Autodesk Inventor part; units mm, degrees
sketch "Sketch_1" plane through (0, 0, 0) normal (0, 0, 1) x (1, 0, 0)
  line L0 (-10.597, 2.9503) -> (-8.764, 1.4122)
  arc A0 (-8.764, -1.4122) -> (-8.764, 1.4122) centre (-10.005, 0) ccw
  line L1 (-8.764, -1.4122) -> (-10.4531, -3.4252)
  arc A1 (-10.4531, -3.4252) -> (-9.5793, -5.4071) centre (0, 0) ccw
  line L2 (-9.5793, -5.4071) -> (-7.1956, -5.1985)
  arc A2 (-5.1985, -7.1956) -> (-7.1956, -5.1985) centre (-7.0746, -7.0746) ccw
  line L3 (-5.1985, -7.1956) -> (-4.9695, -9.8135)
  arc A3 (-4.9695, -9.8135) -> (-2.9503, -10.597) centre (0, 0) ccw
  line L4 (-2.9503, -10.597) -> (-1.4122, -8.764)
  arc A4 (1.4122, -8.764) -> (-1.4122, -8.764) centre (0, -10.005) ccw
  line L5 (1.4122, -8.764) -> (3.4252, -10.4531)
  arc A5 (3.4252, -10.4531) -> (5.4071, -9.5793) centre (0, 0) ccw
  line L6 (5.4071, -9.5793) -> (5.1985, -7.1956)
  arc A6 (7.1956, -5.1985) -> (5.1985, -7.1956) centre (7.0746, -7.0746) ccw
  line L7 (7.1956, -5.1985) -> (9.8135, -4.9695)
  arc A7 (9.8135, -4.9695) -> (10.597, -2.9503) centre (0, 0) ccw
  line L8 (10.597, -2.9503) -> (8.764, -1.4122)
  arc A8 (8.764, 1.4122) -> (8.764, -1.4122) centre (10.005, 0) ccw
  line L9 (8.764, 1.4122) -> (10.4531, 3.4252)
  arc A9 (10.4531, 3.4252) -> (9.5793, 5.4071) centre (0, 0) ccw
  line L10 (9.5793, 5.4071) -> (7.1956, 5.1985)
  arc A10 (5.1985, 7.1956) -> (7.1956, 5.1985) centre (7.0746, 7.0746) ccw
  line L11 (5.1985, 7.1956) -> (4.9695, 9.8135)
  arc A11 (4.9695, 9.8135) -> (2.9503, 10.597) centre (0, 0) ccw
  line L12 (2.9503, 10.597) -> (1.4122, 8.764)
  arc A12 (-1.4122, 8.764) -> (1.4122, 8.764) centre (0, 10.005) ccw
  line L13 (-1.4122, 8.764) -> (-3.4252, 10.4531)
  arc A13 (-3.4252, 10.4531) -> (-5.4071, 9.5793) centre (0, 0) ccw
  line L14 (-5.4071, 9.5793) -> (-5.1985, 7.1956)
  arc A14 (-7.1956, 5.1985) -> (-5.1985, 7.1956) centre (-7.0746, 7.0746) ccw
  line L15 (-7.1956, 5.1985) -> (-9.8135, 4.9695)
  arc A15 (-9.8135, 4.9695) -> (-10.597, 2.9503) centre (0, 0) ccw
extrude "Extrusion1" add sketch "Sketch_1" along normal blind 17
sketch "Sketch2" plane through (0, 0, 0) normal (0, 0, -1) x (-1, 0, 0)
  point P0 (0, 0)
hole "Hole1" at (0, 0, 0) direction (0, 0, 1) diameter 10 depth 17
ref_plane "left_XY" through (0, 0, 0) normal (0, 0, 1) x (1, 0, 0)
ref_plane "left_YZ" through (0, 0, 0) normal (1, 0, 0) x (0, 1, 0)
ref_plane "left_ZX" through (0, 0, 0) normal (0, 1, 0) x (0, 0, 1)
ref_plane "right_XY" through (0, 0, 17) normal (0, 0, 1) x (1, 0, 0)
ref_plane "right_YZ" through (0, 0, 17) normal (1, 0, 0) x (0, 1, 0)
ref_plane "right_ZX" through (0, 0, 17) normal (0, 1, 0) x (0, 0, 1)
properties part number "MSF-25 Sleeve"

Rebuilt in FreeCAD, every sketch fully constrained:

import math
import FreeCAD as App
import Part
import Sketcher
Q = App.Units.Quantity

doc = App.newDocument("Part")
body = doc.addObject("PartDesign::Body", "Body")

# Sketch on XY plane
sketch1 = body.newObject("Sketcher::SketchObject", "Sketch")
sketch1.AttachmentSupport = (doc.getObject("XY_Plane"), [""])
sketch1.MapMode = "FlatFace"
sketch1.addGeometry([
    Part.ArcOfCircle(Part.Circle(App.Vector(0, 0, 0), App.Vector(0, 0, 1), 10.999968), math.radians(153.142608), math.radians(164.44232)),  # 0
    Part.LineSegment(App.Vector(-10.597, 2.9503, 0), App.Vector(-8.764, 1.4122, 0)),  # 1
    Part.ArcOfCircle(Part.Circle(App.Vector(-10.005, 0, 0), App.Vector(0, 0, 1), 1.879997), math.radians(-48.691941), math.radians(48.691941)),  # 2
    Part.LineSegment(App.Vector(-8.764, -1.4122, 0), App.Vector(-10.4531, -3.4252, 0)),  # 3
    Part.ArcOfCircle(Part.Circle(App.Vector(0.001856, 0.000711, 0), App.Vector(0, 0, 1), 11.001953), math.radians(-161.85691), math.radians(-150.558679)),  # 4
    Part.LineSegment(App.Vector(-9.5793, -5.4071, 0), App.Vector(-7.1956, -5.1985, 0)),  # 5
    Part.ArcOfCircle(Part.Circle(App.Vector(-7.0746, -7.0746, 0), App.Vector(0, 0, 1), 1.879998), math.radians(-3.690209), math.radians(93.690209)),  # 6
    Part.LineSegment(App.Vector(-5.1985, -7.1956, 0), App.Vector(-4.9695, -9.8135, 0)),  # 7
    Part.ArcOfCircle(Part.Circle(App.Vector(0, 0, 0), App.Vector(0, 0, 1), 10.999968), math.radians(-116.857392), math.radians(-105.55768)),  # 8
    Part.LineSegment(App.Vector(-2.9503, -10.597, 0), App.Vector(-1.4122, -8.764, 0)),  # 9
    Part.ArcOfCircle(Part.Circle(App.Vector(0, -10.005, 0), App.Vector(0, 0, 1), 1.879997), math.radians(41.308059), math.radians(138.691941)),  # 10
    Part.LineSegment(App.Vector(1.4122, -8.764, 0), App.Vector(3.4252, -10.4531, 0)),  # 11
    Part.ArcOfCircle(Part.Circle(App.Vector(-0.000711, 0.001856, 0), App.Vector(0, 0, 1), 11.001953), math.radians(-71.85691), math.radians(-60.558679)),  # 12
    Part.LineSegment(App.Vector(5.4071, -9.5793, 0), App.Vector(5.1985, -7.1956, 0)),  # 13
    Part.ArcOfCircle(Part.Circle(App.Vector(7.0746, -7.0746, 0), App.Vector(0, 0, 1), 1.879998), math.radians(86.309791), math.radians(183.690209)),  # 14
    Part.LineSegment(App.Vector(7.1956, -5.1985, 0), App.Vector(9.8135, -4.9695, 0)),  # 15
    Part.ArcOfCircle(Part.Circle(App.Vector(0, 0, 0), App.Vector(0, 0, 1), 10.999968), math.radians(-26.857392), math.radians(-15.55768)),  # 16
    Part.LineSegment(App.Vector(10.597, -2.9503, 0), App.Vector(8.764, -1.4122, 0)),  # 17
    Part.ArcOfCircle(Part.Circle(App.Vector(10.005, 0, 0), App.Vector(0, 0, 1), 1.879997), math.radians(131.308059), math.radians(228.691941)),  # 18
    Part.LineSegment(App.Vector(8.764, 1.4122, 0), App.Vector(10.4531, 3.4252, 0)),  # 19
    Part.ArcOfCircle(Part.Circle(App.Vector(-0.001856, -0.000711, 0), App.Vector(0, 0, 1), 11.001953), math.radians(18.14309), math.radians(29.441321)),  # 20
    Part.LineSegment(App.Vector(9.5793, 5.4071, 0), App.Vector(7.1956, 5.1985, 0)),  # 21
    Part.ArcOfCircle(Part.Circle(App.Vector(7.0746, 7.0746, 0), App.Vector(0, 0, 1), 1.879998), math.radians(176.309791), math.radians(273.690209)),  # 22
    Part.LineSegment(App.Vector(5.1985, 7.1956, 0), App.Vector(4.9695, 9.8135, 0)),  # 23
    Part.ArcOfCircle(Part.Circle(App.Vector(0, 0, 0), App.Vector(0, 0, 1), 10.999968), math.radians(63.142608), math.radians(74.44232)),  # 24
    Part.LineSegment(App.Vector(2.9503, 10.597, 0), App.Vector(1.4122, 8.764, 0)),  # 25
    Part.ArcOfCircle(Part.Circle(App.Vector(0, 10.005, 0), App.Vector(0, 0, 1), 1.879997), math.radians(-138.691941), math.radians(-41.308059)),  # 26
    Part.LineSegment(App.Vector(-1.4122, 8.764, 0), App.Vector(-3.4252, 10.4531, 0)),  # 27
    Part.ArcOfCircle(Part.Circle(App.Vector(0.000711, -0.001856, 0), App.Vector(0, 0, 1), 11.001953), math.radians(108.14309), math.radians(119.441321)),  # 28
    Part.LineSegment(App.Vector(-5.4071, 9.5793, 0), App.Vector(-5.1985, 7.1956, 0)),  # 29
    Part.ArcOfCircle(Part.Circle(App.Vector(-7.0746, 7.0746, 0), App.Vector(0, 0, 1), 1.879998), math.radians(-93.690209), math.radians(3.690209)),  # 30
    Part.LineSegment(App.Vector(-7.1956, 5.1985, 0), App.Vector(-9.8135, 4.9695, 0)),  # 31
], False)
sketch1.addConstraint([
    Sketcher.Constraint("Coincident", 0, 2, 1, 1),
    Sketcher.Constraint("Coincident", 1, 2, 2, 2),
    Sketcher.Constraint("Coincident", 2, 1, 3, 1),
    Sketcher.Constraint("Coincident", 3, 2, 4, 1),
    Sketcher.Constraint("Coincident", 4, 2, 5, 1),
    Sketcher.Constraint("Coincident", 5, 2, 6, 2),
    Sketcher.Constraint("Coincident", 6, 1, 7, 1),
    Sketcher.Constraint("Coincident", 7, 2, 8, 1),
    Sketcher.Constraint("Coincident", 8, 2, 9, 1),
    Sketcher.Constraint("Coincident", 9, 2, 10, 2),
    Sketcher.Constraint("Coincident", 10, 1, 11, 1),
    Sketcher.Constraint("Coincident", 11, 2, 12, 1),
    Sketcher.Constraint("Coincident", 12, 2, 13, 1),
    Sketcher.Constraint("Coincident", 13, 2, 14, 2),
    Sketcher.Constraint("Coincident", 14, 1, 15, 1),
    Sketcher.Constraint("Coincident", 15, 2, 16, 1),
    Sketcher.Constraint("Coincident", 16, 2, 17, 1),
    Sketcher.Constraint("Coincident", 17, 2, 18, 2),
    Sketcher.Constraint("Coincident", 18, 1, 19, 1),
    Sketcher.Constraint("Coincident", 19, 2, 20, 1),
    Sketcher.Constraint("Coincident", 20, 2, 21, 1),
    Sketcher.Constraint("Coincident", 21, 2, 22, 2),
    Sketcher.Constraint("Coincident", 22, 1, 23, 1),
    Sketcher.Constraint("Coincident", 23, 2, 24, 1),
    Sketcher.Constraint("Coincident", 24, 2, 25, 1),
    Sketcher.Constraint("Coincident", 25, 2, 26, 2),
    Sketcher.Constraint("Coincident", 26, 1, 27, 1),
    Sketcher.Constraint("Coincident", 27, 2, 28, 1),
    Sketcher.Constraint("Coincident", 28, 2, 29, 1),
    Sketcher.Constraint("Coincident", 29, 2, 30, 2),
    Sketcher.Constraint("Coincident", 30, 1, 31, 1),
    Sketcher.Constraint("Coincident", 31, 2, 0, 1),
    Sketcher.Constraint("Coincident", 0, 3, -1, 1),
    Sketcher.Constraint("Coincident", 8, 3, -1, 1),
    Sketcher.Constraint("Coincident", 16, 3, -1, 1),
    Sketcher.Constraint("Coincident", 24, 3, -1, 1),
    Sketcher.Constraint("Equal", 2, 6),
    Sketcher.Constraint("Equal", 0, 8),
    Sketcher.Constraint("Equal", 6, 10),
    Sketcher.Constraint("Equal", 4, 12),
    Sketcher.Constraint("Equal", 10, 14),
    Sketcher.Constraint("Equal", 8, 16),
    Sketcher.Constraint("Equal", 14, 18),
    Sketcher.Constraint("Equal", 12, 20),
    Sketcher.Constraint("Equal", 18, 22),
    Sketcher.Constraint("Equal", 16, 24),
    Sketcher.Constraint("Equal", 22, 26),
    Sketcher.Constraint("Equal", 20, 28),
    Sketcher.Constraint("Equal", 26, 30),
    Sketcher.Constraint("Symmetric", 2, 3, 18, 3, -1, 1),
    Sketcher.Constraint("Symmetric", 4, 3, 20, 3, -1, 1),
    Sketcher.Constraint("Symmetric", 6, 3, 22, 3, -1, 1),
    Sketcher.Constraint("Symmetric", 10, 3, 26, 3, -1, 1),
    Sketcher.Constraint("Symmetric", 12, 3, 28, 3, -1, 1),
    Sketcher.Constraint("Symmetric", 14, 3, 30, 3, -1, 1),
    Sketcher.Constraint("Symmetric", 6, 3, 14, 3, -2),
    Sketcher.Constraint("Symmetric", 9, 2, 10, 1, -2),
    Sketcher.Constraint("Symmetric", 2, 1, 17, 2, -2),
    Sketcher.Constraint("Perpendicular", 1, 3),
    Sketcher.Constraint("Perpendicular", 5, 7),
    Sketcher.Constraint("Parallel", 3, 9),
    Sketcher.Constraint("Perpendicular", 9, 11),
    Sketcher.Constraint("Parallel", 7, 13),
    Sketcher.Constraint("Perpendicular", 13, 15),
    Sketcher.Constraint("Parallel", 11, 17),
    Sketcher.Constraint("Perpendicular", 17, 19),
    Sketcher.Constraint("Parallel", 15, 21),
    Sketcher.Constraint("Perpendicular", 21, 23),
    Sketcher.Constraint("Parallel", 19, 25),
    Sketcher.Constraint("Perpendicular", 25, 27),
    Sketcher.Constraint("Parallel", 23, 29),
    Sketcher.Constraint("Perpendicular", 29, 31),
    Sketcher.Constraint("Horizontal", 6, 1, 13, 2),
    Sketcher.Constraint("Horizontal", 5, 2, 14, 1),
    Sketcher.Constraint("Horizontal", 1, 2, 18, 1),
    Sketcher.Constraint("Horizontal", 25, 2, 26, 1),
    Sketcher.Constraint("Horizontal", 22, 1, 29, 2),
    Sketcher.Constraint("Horizontal", 21, 2, 30, 1),
    Sketcher.Constraint("Vertical", 1, 2, 2, 1),
    Sketcher.Constraint("Vertical", 14, 1, 21, 2),
    Sketcher.Constraint("Vertical", 13, 2, 22, 1),
    Sketcher.Constraint("Vertical", 10, 1, 25, 2),
    Sketcher.Constraint("Equal", 1, 5),
    Sketcher.Constraint("Equal", 3, 7),
    Sketcher.Constraint("Equal", 5, 9),
    Sketcher.Constraint("Equal", 7, 11),
    Sketcher.Constraint("Equal", 9, 13),
    Sketcher.Constraint("Equal", 11, 15),
    Sketcher.Constraint("Radius", 0, Q("11 mm")),
    Sketcher.Constraint("Angle", 1, Q("-40.0006 deg")),
    Sketcher.Constraint("Angle", 7, Q("-85.0008 deg")),
    Sketcher.Constraint("Radius", 2, Q("1.88 mm")),
    Sketcher.Constraint("Radius", 4, Q("11.002 mm")),
    Sketcher.Constraint("Distance", 7, Q("2.628 mm")),
    Sketcher.Constraint("DistanceX", 2, 3, -1, 1, Q("10.005 mm")),
    Sketcher.Constraint("DistanceY", 10, 3, -1, 1, Q("10.005 mm")),
    Sketcher.Constraint("DistanceX", 1, 2, -1, 1, Q("8.764 mm")),
    Sketcher.Constraint("DistanceY", 4, 2, -1, 1, Q("5.407 mm")),
    Sketcher.Constraint("DistanceX", -1, 1, 12, 2, Q("5.407 mm")),
])
pad1 = body.newObject("PartDesign::Pad", "Pad")
pad1.Profile = sketch1
pad1.Length = 17

# Sketch on XY plane
sketch2 = body.newObject("Sketcher::SketchObject", "Sketch001")
sketch2.AttachmentSupport = (doc.getObject("XY_Plane"), [""])
sketch2.MapMode = "FlatFace"
sketch2.addGeometry(Part.Circle(App.Vector(0, 0, 0), App.Vector(0, 0, 1), 5), False)
sketch2.addConstraint([
    Sketcher.Constraint("Coincident", 0, 3, -1, 1),
    Sketcher.Constraint("Diameter", 0, Q("10 mm")),
])
doc.recompute()
hole = body.newObject("PartDesign::Hole", "Hole")
hole.Profile = sketch2
hole.ThreadType = "None"
hole.Diameter = 10
hole.DepthType = "Dimension"
hole.Depth = 17
hole.DrillPoint = "Flat"
hole.Reversed = True

doc.recompute()
